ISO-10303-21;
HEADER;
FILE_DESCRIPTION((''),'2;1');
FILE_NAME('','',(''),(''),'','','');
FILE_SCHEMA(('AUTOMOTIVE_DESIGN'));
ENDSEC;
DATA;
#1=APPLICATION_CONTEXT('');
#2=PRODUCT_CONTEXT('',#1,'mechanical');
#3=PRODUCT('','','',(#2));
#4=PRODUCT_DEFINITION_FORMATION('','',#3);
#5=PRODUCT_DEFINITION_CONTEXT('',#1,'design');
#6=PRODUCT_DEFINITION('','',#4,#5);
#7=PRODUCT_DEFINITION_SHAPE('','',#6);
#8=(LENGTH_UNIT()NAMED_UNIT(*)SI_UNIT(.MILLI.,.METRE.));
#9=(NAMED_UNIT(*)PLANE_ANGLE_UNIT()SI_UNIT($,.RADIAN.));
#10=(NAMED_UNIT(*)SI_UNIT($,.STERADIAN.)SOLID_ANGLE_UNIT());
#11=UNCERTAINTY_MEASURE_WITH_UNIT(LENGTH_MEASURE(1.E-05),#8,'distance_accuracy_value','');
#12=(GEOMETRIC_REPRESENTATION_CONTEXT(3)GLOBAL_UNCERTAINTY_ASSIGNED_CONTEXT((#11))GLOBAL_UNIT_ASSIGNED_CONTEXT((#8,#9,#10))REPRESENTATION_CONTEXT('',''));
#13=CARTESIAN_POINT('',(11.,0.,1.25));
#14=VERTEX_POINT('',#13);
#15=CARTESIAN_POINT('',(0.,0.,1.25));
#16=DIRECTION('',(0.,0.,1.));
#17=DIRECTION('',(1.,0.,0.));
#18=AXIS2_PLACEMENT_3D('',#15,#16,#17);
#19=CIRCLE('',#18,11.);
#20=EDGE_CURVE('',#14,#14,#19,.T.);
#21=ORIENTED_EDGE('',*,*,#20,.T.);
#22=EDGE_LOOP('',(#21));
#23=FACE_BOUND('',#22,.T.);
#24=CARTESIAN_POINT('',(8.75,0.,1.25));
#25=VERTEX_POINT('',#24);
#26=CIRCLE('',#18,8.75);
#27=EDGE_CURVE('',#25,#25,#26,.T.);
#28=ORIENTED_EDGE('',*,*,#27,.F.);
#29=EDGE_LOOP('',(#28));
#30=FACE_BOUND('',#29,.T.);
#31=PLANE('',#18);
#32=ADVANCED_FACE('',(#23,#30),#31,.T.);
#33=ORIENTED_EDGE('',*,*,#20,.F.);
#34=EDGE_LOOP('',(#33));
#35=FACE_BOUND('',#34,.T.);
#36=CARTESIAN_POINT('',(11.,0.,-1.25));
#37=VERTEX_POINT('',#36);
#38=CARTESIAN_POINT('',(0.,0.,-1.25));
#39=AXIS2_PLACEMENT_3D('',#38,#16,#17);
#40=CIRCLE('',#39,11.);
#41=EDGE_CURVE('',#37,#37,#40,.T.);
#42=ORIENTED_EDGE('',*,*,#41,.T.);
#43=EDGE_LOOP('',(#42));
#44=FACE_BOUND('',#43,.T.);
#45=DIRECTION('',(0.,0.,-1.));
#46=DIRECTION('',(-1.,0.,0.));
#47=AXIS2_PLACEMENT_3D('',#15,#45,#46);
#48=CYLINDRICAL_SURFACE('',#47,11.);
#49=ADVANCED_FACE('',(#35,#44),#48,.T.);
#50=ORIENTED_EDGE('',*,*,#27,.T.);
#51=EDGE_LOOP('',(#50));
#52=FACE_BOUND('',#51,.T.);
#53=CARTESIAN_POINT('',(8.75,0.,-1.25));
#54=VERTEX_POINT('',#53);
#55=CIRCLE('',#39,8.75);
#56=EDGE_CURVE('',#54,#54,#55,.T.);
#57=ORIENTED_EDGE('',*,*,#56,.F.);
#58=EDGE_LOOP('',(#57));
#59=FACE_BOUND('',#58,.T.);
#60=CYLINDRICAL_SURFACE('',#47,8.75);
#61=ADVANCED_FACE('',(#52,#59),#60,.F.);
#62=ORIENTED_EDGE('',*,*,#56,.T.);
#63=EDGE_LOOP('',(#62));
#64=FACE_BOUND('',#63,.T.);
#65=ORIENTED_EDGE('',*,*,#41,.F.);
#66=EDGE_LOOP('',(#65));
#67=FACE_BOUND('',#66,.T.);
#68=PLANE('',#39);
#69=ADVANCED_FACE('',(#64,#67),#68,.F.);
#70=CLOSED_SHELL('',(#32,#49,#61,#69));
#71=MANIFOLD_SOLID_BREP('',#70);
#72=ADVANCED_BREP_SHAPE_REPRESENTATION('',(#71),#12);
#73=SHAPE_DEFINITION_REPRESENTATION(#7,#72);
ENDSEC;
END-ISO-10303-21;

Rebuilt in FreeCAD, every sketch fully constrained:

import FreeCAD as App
import Part
import Sketcher
Q = App.Units.Quantity

doc = App.newDocument("Part")
params = doc.addObject("Spreadsheet::Sheet", "Params")
for row, (alias, value) in enumerate([
    ("sketch1_diameter", "22 mm"),
    ("sketch1_diameter2", "17.5 mm"),
    ("pad1_length", "2.5 mm"),
], start=1):
    params.set(f"A{row}", alias)
    params.set(f"B{row}", "=" + value)
    params.setAlias(f"B{row}", alias)

body = doc.addObject("PartDesign::Body", "Body")

sketch1 = body.newObject("Sketcher::SketchObject", "Sketch")
sketch1.AttachmentSupport = (doc.getObject("XY_Plane"), [""])
sketch1.MapMode = "FlatFace"
sketch1.addGeometry([
    Part.Circle(App.Vector(0, 0, 0), App.Vector(0, 0, 1), 11),
    Part.Circle(App.Vector(0, 0, 0), App.Vector(0, 0, 1), 9),
], False)
sketch1.addConstraint([
    Sketcher.Constraint("Coincident", 0, 3, -1, 1),
    Sketcher.Constraint("Coincident", 1, 3, -1, 1),
    Sketcher.Constraint("Diameter", 0, Q("22 mm")),
    Sketcher.Constraint("Diameter", 1, Q("17.5 mm")),
])
sketch1.setExpression("Constraints[2]", "Params.sketch1_diameter")
sketch1.setExpression("Constraints[3]", "Params.sketch1_diameter2")
pad1 = body.newObject("PartDesign::Pad", "Pad")
pad1.Profile = sketch1
pad1.setExpression("Length", "Params.pad1_length")
pad1.Midplane = True

doc.recompute()
